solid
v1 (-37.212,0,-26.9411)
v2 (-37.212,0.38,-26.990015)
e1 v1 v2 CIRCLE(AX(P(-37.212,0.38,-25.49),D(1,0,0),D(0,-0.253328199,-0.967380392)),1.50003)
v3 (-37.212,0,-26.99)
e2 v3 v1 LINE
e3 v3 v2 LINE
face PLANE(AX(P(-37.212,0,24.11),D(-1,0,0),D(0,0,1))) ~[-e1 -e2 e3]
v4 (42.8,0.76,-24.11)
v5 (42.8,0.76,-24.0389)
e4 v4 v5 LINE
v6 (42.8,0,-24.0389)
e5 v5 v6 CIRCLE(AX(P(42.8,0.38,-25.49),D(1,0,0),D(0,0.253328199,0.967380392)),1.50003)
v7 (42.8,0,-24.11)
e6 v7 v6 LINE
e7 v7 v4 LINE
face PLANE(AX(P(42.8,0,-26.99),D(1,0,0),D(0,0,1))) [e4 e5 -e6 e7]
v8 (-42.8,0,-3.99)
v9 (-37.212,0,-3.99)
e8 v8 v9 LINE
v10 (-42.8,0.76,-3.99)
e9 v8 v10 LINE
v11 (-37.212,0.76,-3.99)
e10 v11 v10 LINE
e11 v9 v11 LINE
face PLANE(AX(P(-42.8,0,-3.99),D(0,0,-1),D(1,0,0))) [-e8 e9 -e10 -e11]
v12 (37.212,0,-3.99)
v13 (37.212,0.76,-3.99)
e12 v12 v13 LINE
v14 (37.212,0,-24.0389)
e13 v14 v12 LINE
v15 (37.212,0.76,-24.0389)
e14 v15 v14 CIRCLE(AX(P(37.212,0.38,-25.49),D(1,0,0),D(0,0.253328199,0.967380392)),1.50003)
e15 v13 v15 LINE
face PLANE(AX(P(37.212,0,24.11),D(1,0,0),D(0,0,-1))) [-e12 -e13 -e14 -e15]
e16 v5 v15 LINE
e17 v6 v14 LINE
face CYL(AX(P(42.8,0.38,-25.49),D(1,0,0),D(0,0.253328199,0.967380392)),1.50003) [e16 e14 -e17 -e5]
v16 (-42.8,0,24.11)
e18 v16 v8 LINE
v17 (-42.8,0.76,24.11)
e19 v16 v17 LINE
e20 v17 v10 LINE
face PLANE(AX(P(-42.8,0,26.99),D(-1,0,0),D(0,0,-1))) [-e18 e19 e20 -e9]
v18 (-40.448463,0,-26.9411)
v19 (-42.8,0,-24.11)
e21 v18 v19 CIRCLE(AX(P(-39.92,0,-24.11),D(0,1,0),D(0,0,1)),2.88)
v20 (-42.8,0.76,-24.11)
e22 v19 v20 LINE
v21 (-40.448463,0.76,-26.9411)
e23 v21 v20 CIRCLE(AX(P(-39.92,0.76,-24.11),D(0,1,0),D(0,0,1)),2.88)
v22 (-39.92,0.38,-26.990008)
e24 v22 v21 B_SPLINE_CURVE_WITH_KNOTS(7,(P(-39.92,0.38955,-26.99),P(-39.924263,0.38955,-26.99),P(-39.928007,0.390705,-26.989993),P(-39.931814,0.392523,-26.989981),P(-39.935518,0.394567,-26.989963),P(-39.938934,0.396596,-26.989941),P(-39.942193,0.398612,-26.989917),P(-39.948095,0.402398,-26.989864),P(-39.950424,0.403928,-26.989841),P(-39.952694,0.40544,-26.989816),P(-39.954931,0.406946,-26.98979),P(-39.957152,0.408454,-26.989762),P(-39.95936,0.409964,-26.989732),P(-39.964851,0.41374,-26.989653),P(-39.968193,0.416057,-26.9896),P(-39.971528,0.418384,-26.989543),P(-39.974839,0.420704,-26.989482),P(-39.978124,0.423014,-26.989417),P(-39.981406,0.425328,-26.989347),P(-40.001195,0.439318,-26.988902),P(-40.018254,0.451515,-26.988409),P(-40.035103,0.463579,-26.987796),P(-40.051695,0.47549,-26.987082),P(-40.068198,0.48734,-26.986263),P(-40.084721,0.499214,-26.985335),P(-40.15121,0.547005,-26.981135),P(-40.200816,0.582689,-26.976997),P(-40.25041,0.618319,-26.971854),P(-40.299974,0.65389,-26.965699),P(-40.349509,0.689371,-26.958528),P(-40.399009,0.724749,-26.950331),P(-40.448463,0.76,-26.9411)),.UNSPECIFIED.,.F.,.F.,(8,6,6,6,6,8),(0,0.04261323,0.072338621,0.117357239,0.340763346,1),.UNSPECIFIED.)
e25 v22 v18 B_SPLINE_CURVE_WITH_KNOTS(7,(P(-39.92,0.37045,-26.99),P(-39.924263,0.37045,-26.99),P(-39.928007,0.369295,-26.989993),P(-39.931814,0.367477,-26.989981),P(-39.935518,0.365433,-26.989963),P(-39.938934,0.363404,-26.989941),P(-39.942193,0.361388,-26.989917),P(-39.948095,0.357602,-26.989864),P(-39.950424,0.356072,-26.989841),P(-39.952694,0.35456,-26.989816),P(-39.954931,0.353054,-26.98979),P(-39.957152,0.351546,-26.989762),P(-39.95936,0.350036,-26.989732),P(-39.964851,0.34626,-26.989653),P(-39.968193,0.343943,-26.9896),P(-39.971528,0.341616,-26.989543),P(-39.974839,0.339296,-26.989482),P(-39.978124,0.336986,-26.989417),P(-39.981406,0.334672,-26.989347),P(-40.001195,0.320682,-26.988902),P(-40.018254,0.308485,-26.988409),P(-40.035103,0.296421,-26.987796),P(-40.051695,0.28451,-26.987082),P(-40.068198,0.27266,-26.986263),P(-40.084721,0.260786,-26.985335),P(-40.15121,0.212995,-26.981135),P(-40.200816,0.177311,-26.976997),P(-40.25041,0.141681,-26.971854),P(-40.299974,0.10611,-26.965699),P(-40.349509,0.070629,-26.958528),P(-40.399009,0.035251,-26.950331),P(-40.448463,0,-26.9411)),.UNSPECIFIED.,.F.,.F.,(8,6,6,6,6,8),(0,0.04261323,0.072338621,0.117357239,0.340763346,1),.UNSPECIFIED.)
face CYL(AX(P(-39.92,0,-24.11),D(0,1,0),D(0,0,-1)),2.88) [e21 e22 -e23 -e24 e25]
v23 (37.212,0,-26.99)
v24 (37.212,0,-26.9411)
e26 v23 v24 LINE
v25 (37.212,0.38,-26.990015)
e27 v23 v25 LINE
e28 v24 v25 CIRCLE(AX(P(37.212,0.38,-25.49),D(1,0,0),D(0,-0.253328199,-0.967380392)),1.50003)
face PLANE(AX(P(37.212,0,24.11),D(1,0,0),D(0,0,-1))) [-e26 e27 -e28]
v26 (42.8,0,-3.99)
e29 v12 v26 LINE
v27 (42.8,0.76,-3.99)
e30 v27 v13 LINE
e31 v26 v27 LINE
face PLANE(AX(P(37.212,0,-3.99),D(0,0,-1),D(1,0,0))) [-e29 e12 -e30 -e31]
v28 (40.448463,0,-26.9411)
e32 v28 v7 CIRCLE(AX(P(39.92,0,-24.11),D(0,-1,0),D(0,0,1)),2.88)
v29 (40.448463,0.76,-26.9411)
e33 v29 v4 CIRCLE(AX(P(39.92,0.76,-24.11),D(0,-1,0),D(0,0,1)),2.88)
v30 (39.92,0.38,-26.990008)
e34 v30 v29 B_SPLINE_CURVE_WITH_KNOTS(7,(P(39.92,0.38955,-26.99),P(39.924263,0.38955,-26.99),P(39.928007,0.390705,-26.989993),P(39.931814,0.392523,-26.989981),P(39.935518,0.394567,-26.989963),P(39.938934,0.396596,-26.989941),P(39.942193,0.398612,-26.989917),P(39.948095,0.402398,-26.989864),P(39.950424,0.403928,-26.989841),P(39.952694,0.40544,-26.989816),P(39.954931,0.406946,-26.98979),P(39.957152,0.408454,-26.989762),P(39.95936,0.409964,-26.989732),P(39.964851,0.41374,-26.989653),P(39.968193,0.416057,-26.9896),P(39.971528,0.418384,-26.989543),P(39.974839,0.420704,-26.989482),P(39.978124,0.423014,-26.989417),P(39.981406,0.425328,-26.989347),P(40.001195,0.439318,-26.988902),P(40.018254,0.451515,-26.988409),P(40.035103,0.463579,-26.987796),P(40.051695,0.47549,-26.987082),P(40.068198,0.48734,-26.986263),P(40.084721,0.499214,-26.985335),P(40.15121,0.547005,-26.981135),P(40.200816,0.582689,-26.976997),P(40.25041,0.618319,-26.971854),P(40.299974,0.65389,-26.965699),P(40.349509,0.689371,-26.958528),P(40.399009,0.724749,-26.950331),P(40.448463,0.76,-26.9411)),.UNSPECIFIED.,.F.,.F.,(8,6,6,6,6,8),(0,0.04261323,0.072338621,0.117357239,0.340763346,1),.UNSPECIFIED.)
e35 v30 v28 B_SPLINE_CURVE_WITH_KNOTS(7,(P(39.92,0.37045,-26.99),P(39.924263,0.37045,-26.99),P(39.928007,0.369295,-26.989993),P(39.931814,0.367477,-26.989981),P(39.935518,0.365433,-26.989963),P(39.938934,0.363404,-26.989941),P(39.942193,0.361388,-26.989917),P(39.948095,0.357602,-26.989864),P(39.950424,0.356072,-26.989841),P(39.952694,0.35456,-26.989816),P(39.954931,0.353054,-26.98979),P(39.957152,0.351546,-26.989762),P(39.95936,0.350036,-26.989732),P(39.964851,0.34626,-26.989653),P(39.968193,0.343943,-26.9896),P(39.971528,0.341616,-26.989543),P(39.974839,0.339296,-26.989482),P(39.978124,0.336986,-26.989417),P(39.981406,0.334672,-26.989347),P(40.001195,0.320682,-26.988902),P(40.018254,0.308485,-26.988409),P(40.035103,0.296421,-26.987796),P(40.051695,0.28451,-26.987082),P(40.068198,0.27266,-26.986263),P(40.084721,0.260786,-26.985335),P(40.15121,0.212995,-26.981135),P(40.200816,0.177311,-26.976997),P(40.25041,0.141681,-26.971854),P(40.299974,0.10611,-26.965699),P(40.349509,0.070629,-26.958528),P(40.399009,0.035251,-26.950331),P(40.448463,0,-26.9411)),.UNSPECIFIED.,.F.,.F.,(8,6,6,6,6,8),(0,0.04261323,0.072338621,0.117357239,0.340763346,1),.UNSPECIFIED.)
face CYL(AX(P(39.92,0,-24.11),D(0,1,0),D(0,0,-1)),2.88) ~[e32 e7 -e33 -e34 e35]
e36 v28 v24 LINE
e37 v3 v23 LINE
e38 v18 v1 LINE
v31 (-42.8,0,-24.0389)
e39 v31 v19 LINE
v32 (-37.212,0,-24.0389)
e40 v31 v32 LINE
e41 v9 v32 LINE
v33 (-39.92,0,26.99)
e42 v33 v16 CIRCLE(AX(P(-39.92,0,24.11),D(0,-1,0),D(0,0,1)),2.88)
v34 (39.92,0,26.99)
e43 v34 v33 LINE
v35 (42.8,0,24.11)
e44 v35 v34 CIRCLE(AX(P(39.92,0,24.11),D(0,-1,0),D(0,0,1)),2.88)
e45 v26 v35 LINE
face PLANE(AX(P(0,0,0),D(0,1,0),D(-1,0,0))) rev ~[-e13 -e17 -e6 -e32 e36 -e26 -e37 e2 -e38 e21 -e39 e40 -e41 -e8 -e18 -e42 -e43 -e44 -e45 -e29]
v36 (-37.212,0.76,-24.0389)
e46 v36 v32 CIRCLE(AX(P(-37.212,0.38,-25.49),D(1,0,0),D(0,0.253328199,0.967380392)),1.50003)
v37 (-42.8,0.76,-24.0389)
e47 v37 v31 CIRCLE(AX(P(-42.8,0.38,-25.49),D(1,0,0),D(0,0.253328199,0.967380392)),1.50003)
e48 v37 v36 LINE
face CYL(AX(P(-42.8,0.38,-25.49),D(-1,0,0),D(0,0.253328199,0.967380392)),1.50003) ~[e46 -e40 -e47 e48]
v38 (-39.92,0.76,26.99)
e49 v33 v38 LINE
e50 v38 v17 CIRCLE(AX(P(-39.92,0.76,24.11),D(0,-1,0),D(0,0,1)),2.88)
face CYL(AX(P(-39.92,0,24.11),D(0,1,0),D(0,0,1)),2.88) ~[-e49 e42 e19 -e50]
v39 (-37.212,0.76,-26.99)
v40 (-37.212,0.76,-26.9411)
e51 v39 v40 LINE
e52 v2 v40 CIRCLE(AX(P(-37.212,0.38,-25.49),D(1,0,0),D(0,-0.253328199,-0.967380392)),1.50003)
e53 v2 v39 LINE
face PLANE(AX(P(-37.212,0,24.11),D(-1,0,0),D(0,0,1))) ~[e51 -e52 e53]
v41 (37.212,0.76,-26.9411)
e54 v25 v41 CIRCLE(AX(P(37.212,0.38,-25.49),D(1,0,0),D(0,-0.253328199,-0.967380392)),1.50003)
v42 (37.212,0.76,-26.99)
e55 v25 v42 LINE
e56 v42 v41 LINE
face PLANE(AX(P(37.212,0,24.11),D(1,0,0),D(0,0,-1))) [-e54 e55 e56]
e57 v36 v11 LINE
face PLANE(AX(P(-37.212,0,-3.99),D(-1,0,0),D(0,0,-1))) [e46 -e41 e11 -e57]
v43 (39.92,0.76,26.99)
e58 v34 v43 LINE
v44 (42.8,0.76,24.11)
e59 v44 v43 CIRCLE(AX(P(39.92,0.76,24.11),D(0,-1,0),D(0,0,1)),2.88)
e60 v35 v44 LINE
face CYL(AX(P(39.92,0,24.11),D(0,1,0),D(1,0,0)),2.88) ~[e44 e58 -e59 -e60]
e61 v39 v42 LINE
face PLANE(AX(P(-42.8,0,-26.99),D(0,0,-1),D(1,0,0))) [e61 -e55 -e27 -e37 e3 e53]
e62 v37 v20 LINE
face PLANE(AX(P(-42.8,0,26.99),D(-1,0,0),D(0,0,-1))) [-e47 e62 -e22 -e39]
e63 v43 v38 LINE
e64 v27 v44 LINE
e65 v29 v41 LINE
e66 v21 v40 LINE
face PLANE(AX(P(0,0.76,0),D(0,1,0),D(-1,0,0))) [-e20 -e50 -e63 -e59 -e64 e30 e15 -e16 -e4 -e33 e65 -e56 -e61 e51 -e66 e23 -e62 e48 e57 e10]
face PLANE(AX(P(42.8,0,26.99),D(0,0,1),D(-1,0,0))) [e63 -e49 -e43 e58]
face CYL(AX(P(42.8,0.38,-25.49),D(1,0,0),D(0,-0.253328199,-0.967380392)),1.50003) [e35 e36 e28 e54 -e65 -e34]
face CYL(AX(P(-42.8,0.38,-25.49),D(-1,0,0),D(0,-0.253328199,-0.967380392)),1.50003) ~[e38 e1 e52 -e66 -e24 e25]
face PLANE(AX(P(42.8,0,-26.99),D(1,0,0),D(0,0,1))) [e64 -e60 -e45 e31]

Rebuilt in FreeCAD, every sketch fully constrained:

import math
import FreeCAD as App
import Part
import Sketcher

V = App.Vector
Q = App.Units.Quantity


def edges_at(feature, points):
    """Names of the edges that pass closest to the given points."""
    edges = feature.Shape.Edges
    near = lambda p: min(range(len(edges)), key=lambda i: edges[i].distToShape(Part.Vertex(*p))[0])
    return sorted({f"Edge{near(p) + 1}" for p in points})

doc = App.newDocument("Part")
body = doc.addObject("PartDesign::Body", "Body")

sketch1 = body.newObject("Sketcher::SketchObject", "Sketch")
sketch1.AttachmentSupport = (doc.getObject("XZ_Plane"), [""])
sketch1.MapMode = "FlatFace"
sketch1.addGeometry(Part.LineSegment(V(43, -27, 0), V(-43, -27, 0)), False)
sketch1.addGeometry(Part.LineSegment(V(-43, -27, 0), V(-43, 27, 0)), False)
sketch1.addGeometry(Part.LineSegment(V(-43, 27, 0), V(43, 27, 0)), False)
sketch1.addGeometry(Part.LineSegment(V(43, 27, 0), V(43, -27, 0)), False)
sketch1.addConstraint(Sketcher.Constraint("Coincident", 0, 2, 1, 1))
sketch1.addConstraint(Sketcher.Constraint("Coincident", 1, 2, 2, 1))
sketch1.addConstraint(Sketcher.Constraint("Coincident", 2, 2, 3, 1))
sketch1.addConstraint(Sketcher.Constraint("Coincident", 3, 2, 0, 1))
sketch1.addConstraint(Sketcher.Constraint("Horizontal", 0))
sketch1.addConstraint(Sketcher.Constraint("Vertical", 1))
sketch1.addConstraint(Sketcher.Constraint("Horizontal", 2))
sketch1.addConstraint(Sketcher.Constraint("Vertical", 3))
sketch1.addConstraint(Sketcher.Constraint("Symmetric", 0, 2, 2, 2, -1, 1))
sketch1.addConstraint(Sketcher.Constraint("DistanceX", 0, 2, 0, 1, Q("85.6 mm")))
sketch1.addConstraint(Sketcher.Constraint("DistanceY", 1, 1, 1, 2, Q("53.98 mm")))
pad1 = body.newObject("PartDesign::Pad", "Pad")
pad1.Profile = sketch1
pad1.Length = 0.76
pad1.Reversed = True
doc.recompute()

fillet = body.newObject("PartDesign::Fillet", "Fillet")
fillet.Base = (pad1, edges_at(pad1, [
    (42.8, 0.38, 26.99),
    (42.8, 0.38, -26.99),
    (-42.8, 0.38, 26.99),
    (-42.8, 0.38, -26.99),
]))
fillet.Radius = 2.88

sketch2 = body.newObject("Sketcher::SketchObject", "Sketch001")
sketch2.AttachmentSupport = (doc.getObject("XZ_Plane"), [""])
sketch2.MapMode = "FlatFace"
sketch2.addGeometry(Part.LineSegment(V(-43, -4, 0), V(-43, -24, 0)), False)
sketch2.addGeometry(Part.LineSegment(V(-43, -24, 0), V(-37, -24, 0)), False)
sketch2.addGeometry(Part.LineSegment(V(-37, -24, 0), V(-37, -4, 0)), False)
sketch2.addGeometry(Part.LineSegment(V(-37, -4, 0), V(-43, -4, 0)), False)
sketch2.addGeometry(Part.LineSegment(V(37, -24, 0), V(43, -24, 0)), False)
sketch2.addGeometry(Part.LineSegment(V(43, -24, 0), V(43, -4, 0)), False)
sketch2.addGeometry(Part.LineSegment(V(43, -4, 0), V(37, -4, 0)), False)
sketch2.addGeometry(Part.LineSegment(V(37, -4, 0), V(37, -24, 0)), False)
sketch2.addConstraint(Sketcher.Constraint("Coincident", 0, 2, 1, 1))
sketch2.addConstraint(Sketcher.Constraint("Coincident", 1, 2, 2, 1))
sketch2.addConstraint(Sketcher.Constraint("Coincident", 2, 2, 3, 1))
sketch2.addConstraint(Sketcher.Constraint("Coincident", 3, 2, 0, 1))
sketch2.addConstraint(Sketcher.Constraint("Coincident", 4, 2, 5, 1))
sketch2.addConstraint(Sketcher.Constraint("Coincident", 5, 2, 6, 1))
sketch2.addConstraint(Sketcher.Constraint("Coincident", 6, 2, 7, 1))
sketch2.addConstraint(Sketcher.Constraint("Coincident", 7, 2, 4, 1))
sketch2.addConstraint(Sketcher.Constraint("Vertical", 0))
sketch2.addConstraint(Sketcher.Constraint("Horizontal", 1))
sketch2.addConstraint(Sketcher.Constraint("Vertical", 2))
sketch2.addConstraint(Sketcher.Constraint("Horizontal", 3))
sketch2.addConstraint(Sketcher.Constraint("Horizontal", 4))
sketch2.addConstraint(Sketcher.Constraint("Vertical", 5))
sketch2.addConstraint(Sketcher.Constraint("Horizontal", 6))
sketch2.addConstraint(Sketcher.Constraint("Vertical", 7))
sketch2.addConstraint(Sketcher.Constraint("Symmetric", 0, 2, 4, 2, -2))
sketch2.addConstraint(Sketcher.Constraint("Symmetric", 2, 2, 6, 2, -2))
sketch2.addConstraint(Sketcher.Constraint("DistanceY", 0, 2, 0, 1, Q("20 mm")))
sketch2.addConstraint(Sketcher.Constraint("DistanceX", 1, 1, 1, 2, Q("5.588 mm")))
sketch2.addConstraint(Sketcher.Constraint("DistanceX", 0, 2, -1, 1, Q("42.8 mm")))
sketch2.addConstraint(Sketcher.Constraint("DistanceY", 0, 2, -1, 1, Q("23.99 mm")))
pocket1 = body.newObject("PartDesign::Pocket", "Pocket")
pocket1.Profile = sketch2
pocket1.Type = "ThroughAll"

sketch3 = body.newObject("Sketcher::SketchObject", "Sketch002")
sketch3.AttachmentSupport = (doc.getObject("YZ_Plane"), [""])
sketch3.MapMode = "FlatFace"
sketch3.AttachmentOffset = App.Placement(V(0, 0, 42.8), App.Rotation())
sketch3.addGeometry(Part.LineSegment(V(0, -26.941, 0), V(0, -26.99, 0)), False)
sketch3.addGeometry(Part.LineSegment(V(0, -26.99, 0), V(0.38, -26.99, 0)), False)
sketch3.addGeometry(Part.ArcOfCircle(Part.Circle(V(0.38, -25.49, 0), V(0, 0, 1), 1.5), math.radians(-104.67), math.radians(-90)), False)
sketch3.addGeometry(Part.ArcOfCircle(Part.Circle(V(0.38, -25.49, 0), V(0, 0, 1), 1.5), math.radians(-90), math.radians(-75.33)), False)
sketch3.addGeometry(Part.LineSegment(V(0.38, -26.99, 0), V(0.76, -26.99, 0)), False)
sketch3.addGeometry(Part.LineSegment(V(0.76, -26.99, 0), V(0.76, -26.941, 0)), False)
sketch3.addGeometry(Part.LineSegment(V(0.76, -24.039, 0), V(0.76, -23.99, 0)), False)
sketch3.addGeometry(Part.LineSegment(V(0.76, -23.99, 0), V(0.38, -23.99, 0)), False)
sketch3.addGeometry(Part.ArcOfCircle(Part.Circle(V(0.38, -25.49, 0), V(0, 0, 1), 1.5), math.radians(75.33), math.radians(90)), False)
sketch3.addGeometry(Part.ArcOfCircle(Part.Circle(V(0.38, -25.49, 0), V(0, 0, 1), 1.5), math.radians(90), math.radians(104.67)), False)
sketch3.addGeometry(Part.LineSegment(V(0.38, -23.99, 0), V(0, -23.99, 0)), False)
sketch3.addGeometry(Part.LineSegment(V(0, -23.99, 0), V(0, -24.039, 0)), False)
sketch3.addConstraint(Sketcher.Constraint("Coincident", 0, 2, 1, 1))
sketch3.addConstraint(Sketcher.Constraint("Tangent", 1, 2, 2, 2))
sketch3.addConstraint(Sketcher.Constraint("Coincident", 2, 1, 0, 1))
sketch3.addConstraint(Sketcher.Constraint("Tangent", 3, 1, 4, 1))
sketch3.addConstraint(Sketcher.Constraint("Coincident", 4, 2, 5, 1))
sketch3.addConstraint(Sketcher.Constraint("Coincident", 5, 2, 3, 2))
sketch3.addConstraint(Sketcher.Constraint("Coincident", 6, 2, 7, 1))
sketch3.addConstraint(Sketcher.Constraint("Tangent", 7, 2, 8, 2))
sketch3.addConstraint(Sketcher.Constraint("Coincident", 8, 1, 6, 1))
sketch3.addConstraint(Sketcher.Constraint("Tangent", 9, 1, 10, 1))
sketch3.addConstraint(Sketcher.Constraint("Coincident", 10, 2, 11, 1))
sketch3.addConstraint(Sketcher.Constraint("Coincident", 11, 2, 9, 2))
sketch3.addConstraint(Sketcher.Constraint("Vertical", 0))
sketch3.addConstraint(Sketcher.Constraint("Horizontal", 1))
sketch3.addConstraint(Sketcher.Constraint("Horizontal", 4))
sketch3.addConstraint(Sketcher.Constraint("Vertical", 5))
sketch3.addConstraint(Sketcher.Constraint("Vertical", 6))
sketch3.addConstraint(Sketcher.Constraint("Horizontal", 7))
sketch3.addConstraint(Sketcher.Constraint("Horizontal", 10))
sketch3.addConstraint(Sketcher.Constraint("Vertical", 11))
sketch3.addConstraint(Sketcher.Constraint("Coincident", 3, 3, 2, 3))
sketch3.addConstraint(Sketcher.Constraint("Coincident", 8, 3, 2, 3))
sketch3.addConstraint(Sketcher.Constraint("Coincident", 9, 3, 2, 3))
sketch3.addConstraint(Sketcher.Constraint("Equal", 2, 3))
sketch3.addConstraint(Sketcher.Constraint("Equal", 3, 8))
sketch3.addConstraint(Sketcher.Constraint("Equal", 8, 9))
sketch3.addConstraint(Sketcher.Constraint("PointOnObject", 0, 2, -2))
sketch3.addConstraint(Sketcher.Constraint("PointOnObject", 10, 2, -2))
sketch3.addConstraint(Sketcher.Constraint("Horizontal", 2, 1, 5, 2))
sketch3.addConstraint(Sketcher.Constraint("Horizontal", 8, 1, 11, 2))
sketch3.addConstraint(Sketcher.Constraint("Radius", 2, Q("1.5 mm")))
sketch3.addConstraint(Sketcher.Constraint("DistanceX", -1, 1, 4, 2, Q("0.76 mm")))
sketch3.addConstraint(Sketcher.Constraint("DistanceY", 2, 3, -1, 1, Q("25.49 mm")))
pocket2 = body.newObject("PartDesign::Pocket", "Pocket001")
pocket2.Profile = sketch3
pocket2.Length = 5.588
doc.recompute()

mirrored = body.newObject("PartDesign::Mirrored", "Mirrored")
mirrored.Originals = [pocket2]
mirrored.MirrorPlane = (doc.getObject("YZ_Plane"), [""])
body.Tip = mirrored

doc.recompute()
